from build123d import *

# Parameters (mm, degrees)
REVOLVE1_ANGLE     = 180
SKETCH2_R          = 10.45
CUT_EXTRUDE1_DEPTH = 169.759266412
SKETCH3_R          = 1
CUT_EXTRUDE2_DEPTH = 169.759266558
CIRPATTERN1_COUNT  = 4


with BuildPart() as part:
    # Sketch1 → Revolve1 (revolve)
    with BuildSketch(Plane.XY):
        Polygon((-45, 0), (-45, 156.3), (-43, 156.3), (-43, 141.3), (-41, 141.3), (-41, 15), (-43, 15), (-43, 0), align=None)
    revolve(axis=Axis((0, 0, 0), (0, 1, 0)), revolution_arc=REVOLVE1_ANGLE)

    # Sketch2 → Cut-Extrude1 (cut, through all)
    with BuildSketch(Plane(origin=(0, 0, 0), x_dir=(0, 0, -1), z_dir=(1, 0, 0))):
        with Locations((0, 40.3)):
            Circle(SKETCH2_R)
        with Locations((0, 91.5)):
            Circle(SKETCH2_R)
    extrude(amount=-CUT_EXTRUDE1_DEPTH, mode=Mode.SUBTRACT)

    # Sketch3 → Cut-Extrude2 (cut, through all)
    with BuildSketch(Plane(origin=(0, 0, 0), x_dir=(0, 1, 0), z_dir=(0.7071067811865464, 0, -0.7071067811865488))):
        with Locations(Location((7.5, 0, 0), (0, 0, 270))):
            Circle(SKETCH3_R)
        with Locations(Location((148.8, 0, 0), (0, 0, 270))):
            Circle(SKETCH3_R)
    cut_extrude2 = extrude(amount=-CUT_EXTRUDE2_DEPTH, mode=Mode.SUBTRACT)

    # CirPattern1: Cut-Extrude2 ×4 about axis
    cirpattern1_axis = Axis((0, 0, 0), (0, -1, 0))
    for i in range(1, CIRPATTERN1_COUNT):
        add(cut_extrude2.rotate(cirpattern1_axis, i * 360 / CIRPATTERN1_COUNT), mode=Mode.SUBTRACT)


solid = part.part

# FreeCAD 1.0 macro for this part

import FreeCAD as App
import Part
import Sketcher
from FreeCAD import Vector

doc = App.newDocument("Part")
params = doc.addObject("Spreadsheet::Sheet", "Params")
for row, (alias, value) in enumerate([
    ("sketch1_width", "2 mm"),
    ("sketch1_height", "15 mm"),
    ("sketch1_height2", "156.3 mm"),
    ("revolution_angle", "180 deg"),
    ("sketch2_diameter", "20.9 mm"),
    ("sketch3_diameter", "2 mm"),
], start=1):
    params.set(f"A{row}", alias)
    params.set(f"B{row}", "=" + value)
    params.setAlias(f"B{row}", alias)

body = doc.addObject("PartDesign::Body", "Body")

sketch1 = body.newObject("Sketcher::SketchObject", "Sketch")
sketch1.AttachmentSupport = (doc.getObject("XY_Plane"), [""])
sketch1.MapMode = "FlatFace"
sketch1.addGeometry([
    Part.LineSegment(Vector(-45, 156.3, 0), Vector(-45, 0, 0)),
    Part.LineSegment(Vector(-45, 0, 0), Vector(-43, 0, 0)),
    Part.LineSegment(Vector(-43, 0, 0), Vector(-43, 15, 0)),
    Part.LineSegment(Vector(-43, 15, 0), Vector(-41, 15, 0)),
    Part.LineSegment(Vector(-41, 15, 0), Vector(-41, 141.3, 0)),
    Part.LineSegment(Vector(-41, 141.3, 0), Vector(-43, 141.3, 0)),
    Part.LineSegment(Vector(-43, 141.3, 0), Vector(-43, 156.3, 0)),
    Part.LineSegment(Vector(-43, 156.3, 0), Vector(-45, 156.3, 0)),
], False)
sketch1.addConstraint([
    Sketcher.Constraint("Coincident", 0, 2, 1, 1),
    Sketcher.Constraint("Coincident", 1, 2, 2, 1),
    Sketcher.Constraint("Coincident", 2, 2, 3, 1),
    Sketcher.Constraint("Coincident", 3, 2, 4, 1),
    Sketcher.Constraint("Coincident", 4, 2, 5, 1),
    Sketcher.Constraint("Coincident", 5, 2, 6, 1),
    Sketcher.Constraint("Coincident", 6, 2, 7, 1),
    Sketcher.Constraint("Coincident", 7, 2, 0, 1),
    Sketcher.Constraint("Vertical", 0),
    Sketcher.Constraint("Horizontal", 1),
    Sketcher.Constraint("Vertical", 2),
    Sketcher.Constraint("Horizontal", 3),
    Sketcher.Constraint("Vertical", 4),
    Sketcher.Constraint("Horizontal", 5),
    Sketcher.Constraint("Vertical", 6),
    Sketcher.Constraint("Horizontal", 7),
    Sketcher.Constraint("PointOnObject", 0, 2, -1),
    Sketcher.Constraint("Vertical", 2, 2, 5, 2),
    Sketcher.Constraint("Equal", 1, 3),
    Sketcher.Constraint("Equal", 2, 6),
    Sketcher.Constraint("DistanceX", 1, 1, 1, 2, 2.0),
    Sketcher.Constraint("DistanceY", 2, 1, 2, 2, 15.0),
    Sketcher.Constraint("DistanceY", 0, 2, 0, 1, 156.3),
    Sketcher.Constraint("DistanceX", 0, 2, -1, 1, 45.0),
])
sketch1.setExpression("Constraints[20]", "Params.sketch1_width")
sketch1.setExpression("Constraints[21]", "Params.sketch1_height")
sketch1.setExpression("Constraints[22]", "Params.sketch1_height2")
revolution = body.newObject("PartDesign::Revolution", "Revolution")
revolution.Profile = sketch1
revolution.ReferenceAxis = (sketch1, ["V_Axis"])
revolution.setExpression("Angle", "Params.revolution_angle")

sketch2 = body.newObject("Sketcher::SketchObject", "Sketch001")
sketch2.AttachmentSupport = (doc.getObject("YZ_Plane"), [""])
sketch2.MapMode = "FlatFace"
sketch2.addGeometry([
    Part.Circle(Vector(40, 0, 0), Vector(0, 0, 1), 10),
    Part.Circle(Vector(92, 0, 0), Vector(0, 0, 1), 10),
], False)
sketch2.addConstraint([
    Sketcher.Constraint("Equal", 0, 1),
    Sketcher.Constraint("PointOnObject", 0, 3, -1),
    Sketcher.Constraint("PointOnObject", 1, 3, -1),
    Sketcher.Constraint("Diameter", 0, 20.9),
    Sketcher.Constraint("DistanceX", -1, 1, 0, 3, 40.3),
    Sketcher.Constraint("DistanceX", -1, 1, 1, 3, 91.5),
])
sketch2.setExpression("Constraints[3]", "Params.sketch2_diameter")
pocket1 = body.newObject("PartDesign::Pocket", "Pocket")
pocket1.Profile = sketch2
pocket1.Type = "ThroughAll"

sketch3 = body.newObject("Sketcher::SketchObject", "Sketch002")
sketch3.Placement = App.Placement(Vector(0, 0, 0), App.Rotation(Vector(0, 1, 0), Vector(0.707106781, 0, 0.707106781), Vector(0.707106781, 0, -0.707106781), "ZXY"))
sketch3.addGeometry([
    Part.Circle(Vector(7.5, 0, 0), Vector(0, 0, 1), 1),
    Part.Circle(Vector(148.8, 0, 0), Vector(0, 0, 1), 1),
], False)
sketch3.addConstraint([
    Sketcher.Constraint("Equal", 0, 1),
    Sketcher.Constraint("PointOnObject", 0, 3, -1),
    Sketcher.Constraint("PointOnObject", 1, 3, -1),
    Sketcher.Constraint("Diameter", 0, 2.0),
    Sketcher.Constraint("DistanceX", -1, 1, 0, 3, 7.5),
    Sketcher.Constraint("DistanceX", -1, 1, 1, 3, 148.8),
])
sketch3.setExpression("Constraints[3]", "Params.sketch3_diameter")
pocket2 = body.newObject("PartDesign::Pocket", "Pocket001")
pocket2.Profile = sketch3
pocket2.Type = "ThroughAll"
doc.recompute()

polarpattern = body.newObject("PartDesign::PolarPattern", "PolarPattern")
polarpattern.Originals = [pocket2]
polarpattern.Axis = (doc.getObject("Y_Axis"), [""])
polarpattern.Angle = 360
polarpattern.Occurrences = 4
body.Tip = polarpattern

doc.recompute()
